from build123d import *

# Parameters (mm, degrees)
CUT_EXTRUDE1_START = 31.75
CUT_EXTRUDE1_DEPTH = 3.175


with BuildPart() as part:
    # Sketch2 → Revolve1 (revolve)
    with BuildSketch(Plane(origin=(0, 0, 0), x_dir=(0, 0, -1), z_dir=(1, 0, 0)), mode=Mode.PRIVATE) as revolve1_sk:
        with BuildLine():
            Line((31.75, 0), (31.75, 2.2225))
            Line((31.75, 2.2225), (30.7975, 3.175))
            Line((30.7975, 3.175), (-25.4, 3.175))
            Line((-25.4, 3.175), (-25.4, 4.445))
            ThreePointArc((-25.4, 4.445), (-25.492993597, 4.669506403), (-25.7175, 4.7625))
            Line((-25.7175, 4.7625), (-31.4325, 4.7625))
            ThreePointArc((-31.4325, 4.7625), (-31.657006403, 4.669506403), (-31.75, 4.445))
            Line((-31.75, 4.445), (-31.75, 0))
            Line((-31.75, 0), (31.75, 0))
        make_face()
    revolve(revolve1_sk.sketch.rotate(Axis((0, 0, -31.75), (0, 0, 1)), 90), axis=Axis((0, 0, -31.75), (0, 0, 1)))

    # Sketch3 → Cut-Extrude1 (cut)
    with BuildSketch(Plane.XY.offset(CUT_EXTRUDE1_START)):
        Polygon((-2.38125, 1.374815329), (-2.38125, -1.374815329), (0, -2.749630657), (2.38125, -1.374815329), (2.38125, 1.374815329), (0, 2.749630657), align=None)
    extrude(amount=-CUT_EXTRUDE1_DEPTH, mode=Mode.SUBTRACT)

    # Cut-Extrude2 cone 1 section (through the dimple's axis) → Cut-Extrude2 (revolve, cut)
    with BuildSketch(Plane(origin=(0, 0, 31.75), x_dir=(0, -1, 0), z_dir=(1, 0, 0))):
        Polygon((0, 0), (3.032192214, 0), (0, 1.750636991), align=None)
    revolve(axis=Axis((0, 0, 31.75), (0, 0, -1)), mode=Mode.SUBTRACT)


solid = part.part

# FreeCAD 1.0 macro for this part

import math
import FreeCAD as App
import Part
import Sketcher
from FreeCAD import Vector
Q = App.Units.Quantity


def add_polygon(sketch, points):
    """Adds a closed chain of lines whose ends are joined by coincident constraints."""
    first, n = sketch.GeometryCount, len(points)
    for a, b in zip(points, points[1:] + points[:1]):
        sketch.addGeometry(Part.LineSegment(App.Vector(*a, 0), App.Vector(*b, 0)), False)
    for i in range(n):
        sketch.addConstraint(Sketcher.Constraint("Coincident", first + i, 2, first + (i + 1) % n, 1))

doc = App.newDocument("Part")
body = doc.addObject("PartDesign::Body", "Body")

sketch1 = body.newObject("Sketcher::SketchObject", "Sketch")
sketch1.AttachmentSupport = (doc.getObject("YZ_Plane"), [""])
sketch1.MapMode = "FlatFace"
sketch1.addGeometry(Part.LineSegment(Vector(0, -31.75, 0), Vector(2.22, -31.75, 0)), False)
sketch1.addGeometry(Part.LineSegment(Vector(2.22, -31.75, 0), Vector(3.17, -30.8, 0)), False)
sketch1.addGeometry(Part.LineSegment(Vector(3.17, -30.8, 0), Vector(3.17, 25.4, 0)), False)
sketch1.addGeometry(Part.LineSegment(Vector(3.17, 25.4, 0), Vector(4.45, 25.4, 0)), False)
sketch1.addGeometry(Part.ArcOfCircle(Part.Circle(Vector(4.45, 25.72, 0), Vector(0, 0, 1), 0.32), math.radians(-90), math.radians(0)), False)
sketch1.addGeometry(Part.LineSegment(Vector(4.76, 25.72, 0), Vector(4.76, 31.43, 0)), False)
sketch1.addGeometry(Part.ArcOfCircle(Part.Circle(Vector(4.45, 31.43, 0), Vector(0, 0, 1), 0.32), math.radians(0), math.radians(90)), False)
sketch1.addGeometry(Part.LineSegment(Vector(4.45, 31.75, 0), Vector(0, 31.75, 0)), False)
sketch1.addGeometry(Part.LineSegment(Vector(0, 31.75, 0), Vector(0, -31.75, 0)), False)
sketch1.addConstraint(Sketcher.Constraint("Coincident", 0, 2, 1, 1))
sketch1.addConstraint(Sketcher.Constraint("Coincident", 1, 2, 2, 1))
sketch1.addConstraint(Sketcher.Constraint("Coincident", 2, 2, 3, 1))
sketch1.addConstraint(Sketcher.Constraint("Tangent", 3, 2, 4, 1))
sketch1.addConstraint(Sketcher.Constraint("Tangent", 4, 2, 5, 1))
sketch1.addConstraint(Sketcher.Constraint("Tangent", 5, 2, 6, 1))
sketch1.addConstraint(Sketcher.Constraint("Tangent", 6, 2, 7, 1))
sketch1.addConstraint(Sketcher.Constraint("Coincident", 7, 2, 8, 1))
sketch1.addConstraint(Sketcher.Constraint("Coincident", 8, 2, 0, 1))
sketch1.addConstraint(Sketcher.Constraint("Horizontal", 0))
sketch1.addConstraint(Sketcher.Constraint("Vertical", 2))
sketch1.addConstraint(Sketcher.Constraint("Horizontal", 3))
sketch1.addConstraint(Sketcher.Constraint("Vertical", 5))
sketch1.addConstraint(Sketcher.Constraint("Horizontal", 7))
sketch1.addConstraint(Sketcher.Constraint("Vertical", 8))
sketch1.addConstraint(Sketcher.Constraint("Equal", 4, 6))
sketch1.addConstraint(Sketcher.Constraint("Symmetric", 7, 2, 8, 2, -1, 1))
sketch1.addConstraint(Sketcher.Constraint("DistanceY", 8, 2, 8, 1, Q("2.5 in")))
sketch1.addConstraint(Sketcher.Constraint("DistanceY", -1, 1, 2, 2, Q("1 in")))
sketch1.addConstraint(Sketcher.Constraint("Angle", 1, Q("45 deg")))
sketch1.addConstraint(Sketcher.Constraint("DistanceX", 3, 1, 3, 2, Q("0.05 in")))
sketch1.addConstraint(Sketcher.Constraint("Radius", 4, Q("0.0125 in")))
sketch1.addConstraint(Sketcher.Constraint("DistanceX", 7, 2, 7, 1, Q("0.175 in")))
sketch1.addConstraint(Sketcher.Constraint("DistanceY", 1, 2, 6, 3, Q("2.45 in")))
revolution = body.newObject("PartDesign::Revolution", "Revolution")
revolution.Profile = sketch1
revolution.ReferenceAxis = (sketch1, ["V_Axis"])
revolution.Angle = 360

sketch2 = body.newObject("Sketcher::SketchObject", "Sketch001")
sketch2.AttachmentSupport = (doc.getObject("XY_Plane"), [""])
sketch2.MapMode = "FlatFace"
sketch2.AttachmentOffset = App.Placement(Vector(0, 0, 1.25 * 25.4), App.Rotation())
add_polygon(sketch2, [(-2.4, 1.4), (-2.4, -1.4), (0, -2.7), (2.4, -1.4), (2.4, 1.4), (0, 2.7)])
sketch2.addConstraint(Sketcher.Constraint("Vertical", 0))
sketch2.addConstraint(Sketcher.Constraint("Vertical", 3))
sketch2.addConstraint(Sketcher.Constraint("Symmetric", 0, 2, 3, 2, -1, 1))
sketch2.addConstraint(Sketcher.Constraint("Symmetric", 1, 2, 4, 2, -1, 1))
sketch2.addConstraint(Sketcher.Constraint("PointOnObject", 1, 2, -2))
sketch2.addConstraint(Sketcher.Constraint("Parallel", 2, 5))
sketch2.addConstraint(Sketcher.Constraint("Horizontal", 0, 2, 2, 2))
sketch2.addConstraint(Sketcher.Constraint("Angle", 1, Q("-30 deg")))
sketch2.addConstraint(Sketcher.Constraint("DistanceX", 0, 2, -1, 1, Q("0.09375 in")))
sketch2.addConstraint(Sketcher.Constraint("DistanceY", 0, 2, 0, 1, Q("2.749631 mm")))
pocket1 = body.newObject("PartDesign::Pocket", "Pocket")
pocket1.Profile = sketch2
pocket1.Length = Q("0.125 in")

sketch3 = body.newObject("Sketcher::SketchObject", "Sketch002")
sketch3.AttachmentSupport = (doc.getObject("YZ_Plane"), [""])
sketch3.MapMode = "FlatFace"
add_polygon(sketch3, [(0, 31.8), (-3, 31.8), (0, 30)])
sketch3.addConstraint(Sketcher.Constraint("Horizontal", 0))
sketch3.addConstraint(Sketcher.Constraint("Vertical", 2))
sketch3.addConstraint(Sketcher.Constraint("PointOnObject", 1, 2, -2))
sketch3.addConstraint(Sketcher.Constraint("Angle", 1, Q("-30 deg")))
sketch3.addConstraint(Sketcher.Constraint("DistanceY", -1, 1, 0, 2, Q("1.25 in")))
sketch3.addConstraint(Sketcher.Constraint("DistanceX", 0, 2, 0, 1, Q("3.032192 mm")))
groove = body.newObject("PartDesign::Groove", "Groove")
groove.Profile = sketch3
groove.ReferenceAxis = (sketch3, ["V_Axis"])
groove.Angle = 360

doc.recompute()
